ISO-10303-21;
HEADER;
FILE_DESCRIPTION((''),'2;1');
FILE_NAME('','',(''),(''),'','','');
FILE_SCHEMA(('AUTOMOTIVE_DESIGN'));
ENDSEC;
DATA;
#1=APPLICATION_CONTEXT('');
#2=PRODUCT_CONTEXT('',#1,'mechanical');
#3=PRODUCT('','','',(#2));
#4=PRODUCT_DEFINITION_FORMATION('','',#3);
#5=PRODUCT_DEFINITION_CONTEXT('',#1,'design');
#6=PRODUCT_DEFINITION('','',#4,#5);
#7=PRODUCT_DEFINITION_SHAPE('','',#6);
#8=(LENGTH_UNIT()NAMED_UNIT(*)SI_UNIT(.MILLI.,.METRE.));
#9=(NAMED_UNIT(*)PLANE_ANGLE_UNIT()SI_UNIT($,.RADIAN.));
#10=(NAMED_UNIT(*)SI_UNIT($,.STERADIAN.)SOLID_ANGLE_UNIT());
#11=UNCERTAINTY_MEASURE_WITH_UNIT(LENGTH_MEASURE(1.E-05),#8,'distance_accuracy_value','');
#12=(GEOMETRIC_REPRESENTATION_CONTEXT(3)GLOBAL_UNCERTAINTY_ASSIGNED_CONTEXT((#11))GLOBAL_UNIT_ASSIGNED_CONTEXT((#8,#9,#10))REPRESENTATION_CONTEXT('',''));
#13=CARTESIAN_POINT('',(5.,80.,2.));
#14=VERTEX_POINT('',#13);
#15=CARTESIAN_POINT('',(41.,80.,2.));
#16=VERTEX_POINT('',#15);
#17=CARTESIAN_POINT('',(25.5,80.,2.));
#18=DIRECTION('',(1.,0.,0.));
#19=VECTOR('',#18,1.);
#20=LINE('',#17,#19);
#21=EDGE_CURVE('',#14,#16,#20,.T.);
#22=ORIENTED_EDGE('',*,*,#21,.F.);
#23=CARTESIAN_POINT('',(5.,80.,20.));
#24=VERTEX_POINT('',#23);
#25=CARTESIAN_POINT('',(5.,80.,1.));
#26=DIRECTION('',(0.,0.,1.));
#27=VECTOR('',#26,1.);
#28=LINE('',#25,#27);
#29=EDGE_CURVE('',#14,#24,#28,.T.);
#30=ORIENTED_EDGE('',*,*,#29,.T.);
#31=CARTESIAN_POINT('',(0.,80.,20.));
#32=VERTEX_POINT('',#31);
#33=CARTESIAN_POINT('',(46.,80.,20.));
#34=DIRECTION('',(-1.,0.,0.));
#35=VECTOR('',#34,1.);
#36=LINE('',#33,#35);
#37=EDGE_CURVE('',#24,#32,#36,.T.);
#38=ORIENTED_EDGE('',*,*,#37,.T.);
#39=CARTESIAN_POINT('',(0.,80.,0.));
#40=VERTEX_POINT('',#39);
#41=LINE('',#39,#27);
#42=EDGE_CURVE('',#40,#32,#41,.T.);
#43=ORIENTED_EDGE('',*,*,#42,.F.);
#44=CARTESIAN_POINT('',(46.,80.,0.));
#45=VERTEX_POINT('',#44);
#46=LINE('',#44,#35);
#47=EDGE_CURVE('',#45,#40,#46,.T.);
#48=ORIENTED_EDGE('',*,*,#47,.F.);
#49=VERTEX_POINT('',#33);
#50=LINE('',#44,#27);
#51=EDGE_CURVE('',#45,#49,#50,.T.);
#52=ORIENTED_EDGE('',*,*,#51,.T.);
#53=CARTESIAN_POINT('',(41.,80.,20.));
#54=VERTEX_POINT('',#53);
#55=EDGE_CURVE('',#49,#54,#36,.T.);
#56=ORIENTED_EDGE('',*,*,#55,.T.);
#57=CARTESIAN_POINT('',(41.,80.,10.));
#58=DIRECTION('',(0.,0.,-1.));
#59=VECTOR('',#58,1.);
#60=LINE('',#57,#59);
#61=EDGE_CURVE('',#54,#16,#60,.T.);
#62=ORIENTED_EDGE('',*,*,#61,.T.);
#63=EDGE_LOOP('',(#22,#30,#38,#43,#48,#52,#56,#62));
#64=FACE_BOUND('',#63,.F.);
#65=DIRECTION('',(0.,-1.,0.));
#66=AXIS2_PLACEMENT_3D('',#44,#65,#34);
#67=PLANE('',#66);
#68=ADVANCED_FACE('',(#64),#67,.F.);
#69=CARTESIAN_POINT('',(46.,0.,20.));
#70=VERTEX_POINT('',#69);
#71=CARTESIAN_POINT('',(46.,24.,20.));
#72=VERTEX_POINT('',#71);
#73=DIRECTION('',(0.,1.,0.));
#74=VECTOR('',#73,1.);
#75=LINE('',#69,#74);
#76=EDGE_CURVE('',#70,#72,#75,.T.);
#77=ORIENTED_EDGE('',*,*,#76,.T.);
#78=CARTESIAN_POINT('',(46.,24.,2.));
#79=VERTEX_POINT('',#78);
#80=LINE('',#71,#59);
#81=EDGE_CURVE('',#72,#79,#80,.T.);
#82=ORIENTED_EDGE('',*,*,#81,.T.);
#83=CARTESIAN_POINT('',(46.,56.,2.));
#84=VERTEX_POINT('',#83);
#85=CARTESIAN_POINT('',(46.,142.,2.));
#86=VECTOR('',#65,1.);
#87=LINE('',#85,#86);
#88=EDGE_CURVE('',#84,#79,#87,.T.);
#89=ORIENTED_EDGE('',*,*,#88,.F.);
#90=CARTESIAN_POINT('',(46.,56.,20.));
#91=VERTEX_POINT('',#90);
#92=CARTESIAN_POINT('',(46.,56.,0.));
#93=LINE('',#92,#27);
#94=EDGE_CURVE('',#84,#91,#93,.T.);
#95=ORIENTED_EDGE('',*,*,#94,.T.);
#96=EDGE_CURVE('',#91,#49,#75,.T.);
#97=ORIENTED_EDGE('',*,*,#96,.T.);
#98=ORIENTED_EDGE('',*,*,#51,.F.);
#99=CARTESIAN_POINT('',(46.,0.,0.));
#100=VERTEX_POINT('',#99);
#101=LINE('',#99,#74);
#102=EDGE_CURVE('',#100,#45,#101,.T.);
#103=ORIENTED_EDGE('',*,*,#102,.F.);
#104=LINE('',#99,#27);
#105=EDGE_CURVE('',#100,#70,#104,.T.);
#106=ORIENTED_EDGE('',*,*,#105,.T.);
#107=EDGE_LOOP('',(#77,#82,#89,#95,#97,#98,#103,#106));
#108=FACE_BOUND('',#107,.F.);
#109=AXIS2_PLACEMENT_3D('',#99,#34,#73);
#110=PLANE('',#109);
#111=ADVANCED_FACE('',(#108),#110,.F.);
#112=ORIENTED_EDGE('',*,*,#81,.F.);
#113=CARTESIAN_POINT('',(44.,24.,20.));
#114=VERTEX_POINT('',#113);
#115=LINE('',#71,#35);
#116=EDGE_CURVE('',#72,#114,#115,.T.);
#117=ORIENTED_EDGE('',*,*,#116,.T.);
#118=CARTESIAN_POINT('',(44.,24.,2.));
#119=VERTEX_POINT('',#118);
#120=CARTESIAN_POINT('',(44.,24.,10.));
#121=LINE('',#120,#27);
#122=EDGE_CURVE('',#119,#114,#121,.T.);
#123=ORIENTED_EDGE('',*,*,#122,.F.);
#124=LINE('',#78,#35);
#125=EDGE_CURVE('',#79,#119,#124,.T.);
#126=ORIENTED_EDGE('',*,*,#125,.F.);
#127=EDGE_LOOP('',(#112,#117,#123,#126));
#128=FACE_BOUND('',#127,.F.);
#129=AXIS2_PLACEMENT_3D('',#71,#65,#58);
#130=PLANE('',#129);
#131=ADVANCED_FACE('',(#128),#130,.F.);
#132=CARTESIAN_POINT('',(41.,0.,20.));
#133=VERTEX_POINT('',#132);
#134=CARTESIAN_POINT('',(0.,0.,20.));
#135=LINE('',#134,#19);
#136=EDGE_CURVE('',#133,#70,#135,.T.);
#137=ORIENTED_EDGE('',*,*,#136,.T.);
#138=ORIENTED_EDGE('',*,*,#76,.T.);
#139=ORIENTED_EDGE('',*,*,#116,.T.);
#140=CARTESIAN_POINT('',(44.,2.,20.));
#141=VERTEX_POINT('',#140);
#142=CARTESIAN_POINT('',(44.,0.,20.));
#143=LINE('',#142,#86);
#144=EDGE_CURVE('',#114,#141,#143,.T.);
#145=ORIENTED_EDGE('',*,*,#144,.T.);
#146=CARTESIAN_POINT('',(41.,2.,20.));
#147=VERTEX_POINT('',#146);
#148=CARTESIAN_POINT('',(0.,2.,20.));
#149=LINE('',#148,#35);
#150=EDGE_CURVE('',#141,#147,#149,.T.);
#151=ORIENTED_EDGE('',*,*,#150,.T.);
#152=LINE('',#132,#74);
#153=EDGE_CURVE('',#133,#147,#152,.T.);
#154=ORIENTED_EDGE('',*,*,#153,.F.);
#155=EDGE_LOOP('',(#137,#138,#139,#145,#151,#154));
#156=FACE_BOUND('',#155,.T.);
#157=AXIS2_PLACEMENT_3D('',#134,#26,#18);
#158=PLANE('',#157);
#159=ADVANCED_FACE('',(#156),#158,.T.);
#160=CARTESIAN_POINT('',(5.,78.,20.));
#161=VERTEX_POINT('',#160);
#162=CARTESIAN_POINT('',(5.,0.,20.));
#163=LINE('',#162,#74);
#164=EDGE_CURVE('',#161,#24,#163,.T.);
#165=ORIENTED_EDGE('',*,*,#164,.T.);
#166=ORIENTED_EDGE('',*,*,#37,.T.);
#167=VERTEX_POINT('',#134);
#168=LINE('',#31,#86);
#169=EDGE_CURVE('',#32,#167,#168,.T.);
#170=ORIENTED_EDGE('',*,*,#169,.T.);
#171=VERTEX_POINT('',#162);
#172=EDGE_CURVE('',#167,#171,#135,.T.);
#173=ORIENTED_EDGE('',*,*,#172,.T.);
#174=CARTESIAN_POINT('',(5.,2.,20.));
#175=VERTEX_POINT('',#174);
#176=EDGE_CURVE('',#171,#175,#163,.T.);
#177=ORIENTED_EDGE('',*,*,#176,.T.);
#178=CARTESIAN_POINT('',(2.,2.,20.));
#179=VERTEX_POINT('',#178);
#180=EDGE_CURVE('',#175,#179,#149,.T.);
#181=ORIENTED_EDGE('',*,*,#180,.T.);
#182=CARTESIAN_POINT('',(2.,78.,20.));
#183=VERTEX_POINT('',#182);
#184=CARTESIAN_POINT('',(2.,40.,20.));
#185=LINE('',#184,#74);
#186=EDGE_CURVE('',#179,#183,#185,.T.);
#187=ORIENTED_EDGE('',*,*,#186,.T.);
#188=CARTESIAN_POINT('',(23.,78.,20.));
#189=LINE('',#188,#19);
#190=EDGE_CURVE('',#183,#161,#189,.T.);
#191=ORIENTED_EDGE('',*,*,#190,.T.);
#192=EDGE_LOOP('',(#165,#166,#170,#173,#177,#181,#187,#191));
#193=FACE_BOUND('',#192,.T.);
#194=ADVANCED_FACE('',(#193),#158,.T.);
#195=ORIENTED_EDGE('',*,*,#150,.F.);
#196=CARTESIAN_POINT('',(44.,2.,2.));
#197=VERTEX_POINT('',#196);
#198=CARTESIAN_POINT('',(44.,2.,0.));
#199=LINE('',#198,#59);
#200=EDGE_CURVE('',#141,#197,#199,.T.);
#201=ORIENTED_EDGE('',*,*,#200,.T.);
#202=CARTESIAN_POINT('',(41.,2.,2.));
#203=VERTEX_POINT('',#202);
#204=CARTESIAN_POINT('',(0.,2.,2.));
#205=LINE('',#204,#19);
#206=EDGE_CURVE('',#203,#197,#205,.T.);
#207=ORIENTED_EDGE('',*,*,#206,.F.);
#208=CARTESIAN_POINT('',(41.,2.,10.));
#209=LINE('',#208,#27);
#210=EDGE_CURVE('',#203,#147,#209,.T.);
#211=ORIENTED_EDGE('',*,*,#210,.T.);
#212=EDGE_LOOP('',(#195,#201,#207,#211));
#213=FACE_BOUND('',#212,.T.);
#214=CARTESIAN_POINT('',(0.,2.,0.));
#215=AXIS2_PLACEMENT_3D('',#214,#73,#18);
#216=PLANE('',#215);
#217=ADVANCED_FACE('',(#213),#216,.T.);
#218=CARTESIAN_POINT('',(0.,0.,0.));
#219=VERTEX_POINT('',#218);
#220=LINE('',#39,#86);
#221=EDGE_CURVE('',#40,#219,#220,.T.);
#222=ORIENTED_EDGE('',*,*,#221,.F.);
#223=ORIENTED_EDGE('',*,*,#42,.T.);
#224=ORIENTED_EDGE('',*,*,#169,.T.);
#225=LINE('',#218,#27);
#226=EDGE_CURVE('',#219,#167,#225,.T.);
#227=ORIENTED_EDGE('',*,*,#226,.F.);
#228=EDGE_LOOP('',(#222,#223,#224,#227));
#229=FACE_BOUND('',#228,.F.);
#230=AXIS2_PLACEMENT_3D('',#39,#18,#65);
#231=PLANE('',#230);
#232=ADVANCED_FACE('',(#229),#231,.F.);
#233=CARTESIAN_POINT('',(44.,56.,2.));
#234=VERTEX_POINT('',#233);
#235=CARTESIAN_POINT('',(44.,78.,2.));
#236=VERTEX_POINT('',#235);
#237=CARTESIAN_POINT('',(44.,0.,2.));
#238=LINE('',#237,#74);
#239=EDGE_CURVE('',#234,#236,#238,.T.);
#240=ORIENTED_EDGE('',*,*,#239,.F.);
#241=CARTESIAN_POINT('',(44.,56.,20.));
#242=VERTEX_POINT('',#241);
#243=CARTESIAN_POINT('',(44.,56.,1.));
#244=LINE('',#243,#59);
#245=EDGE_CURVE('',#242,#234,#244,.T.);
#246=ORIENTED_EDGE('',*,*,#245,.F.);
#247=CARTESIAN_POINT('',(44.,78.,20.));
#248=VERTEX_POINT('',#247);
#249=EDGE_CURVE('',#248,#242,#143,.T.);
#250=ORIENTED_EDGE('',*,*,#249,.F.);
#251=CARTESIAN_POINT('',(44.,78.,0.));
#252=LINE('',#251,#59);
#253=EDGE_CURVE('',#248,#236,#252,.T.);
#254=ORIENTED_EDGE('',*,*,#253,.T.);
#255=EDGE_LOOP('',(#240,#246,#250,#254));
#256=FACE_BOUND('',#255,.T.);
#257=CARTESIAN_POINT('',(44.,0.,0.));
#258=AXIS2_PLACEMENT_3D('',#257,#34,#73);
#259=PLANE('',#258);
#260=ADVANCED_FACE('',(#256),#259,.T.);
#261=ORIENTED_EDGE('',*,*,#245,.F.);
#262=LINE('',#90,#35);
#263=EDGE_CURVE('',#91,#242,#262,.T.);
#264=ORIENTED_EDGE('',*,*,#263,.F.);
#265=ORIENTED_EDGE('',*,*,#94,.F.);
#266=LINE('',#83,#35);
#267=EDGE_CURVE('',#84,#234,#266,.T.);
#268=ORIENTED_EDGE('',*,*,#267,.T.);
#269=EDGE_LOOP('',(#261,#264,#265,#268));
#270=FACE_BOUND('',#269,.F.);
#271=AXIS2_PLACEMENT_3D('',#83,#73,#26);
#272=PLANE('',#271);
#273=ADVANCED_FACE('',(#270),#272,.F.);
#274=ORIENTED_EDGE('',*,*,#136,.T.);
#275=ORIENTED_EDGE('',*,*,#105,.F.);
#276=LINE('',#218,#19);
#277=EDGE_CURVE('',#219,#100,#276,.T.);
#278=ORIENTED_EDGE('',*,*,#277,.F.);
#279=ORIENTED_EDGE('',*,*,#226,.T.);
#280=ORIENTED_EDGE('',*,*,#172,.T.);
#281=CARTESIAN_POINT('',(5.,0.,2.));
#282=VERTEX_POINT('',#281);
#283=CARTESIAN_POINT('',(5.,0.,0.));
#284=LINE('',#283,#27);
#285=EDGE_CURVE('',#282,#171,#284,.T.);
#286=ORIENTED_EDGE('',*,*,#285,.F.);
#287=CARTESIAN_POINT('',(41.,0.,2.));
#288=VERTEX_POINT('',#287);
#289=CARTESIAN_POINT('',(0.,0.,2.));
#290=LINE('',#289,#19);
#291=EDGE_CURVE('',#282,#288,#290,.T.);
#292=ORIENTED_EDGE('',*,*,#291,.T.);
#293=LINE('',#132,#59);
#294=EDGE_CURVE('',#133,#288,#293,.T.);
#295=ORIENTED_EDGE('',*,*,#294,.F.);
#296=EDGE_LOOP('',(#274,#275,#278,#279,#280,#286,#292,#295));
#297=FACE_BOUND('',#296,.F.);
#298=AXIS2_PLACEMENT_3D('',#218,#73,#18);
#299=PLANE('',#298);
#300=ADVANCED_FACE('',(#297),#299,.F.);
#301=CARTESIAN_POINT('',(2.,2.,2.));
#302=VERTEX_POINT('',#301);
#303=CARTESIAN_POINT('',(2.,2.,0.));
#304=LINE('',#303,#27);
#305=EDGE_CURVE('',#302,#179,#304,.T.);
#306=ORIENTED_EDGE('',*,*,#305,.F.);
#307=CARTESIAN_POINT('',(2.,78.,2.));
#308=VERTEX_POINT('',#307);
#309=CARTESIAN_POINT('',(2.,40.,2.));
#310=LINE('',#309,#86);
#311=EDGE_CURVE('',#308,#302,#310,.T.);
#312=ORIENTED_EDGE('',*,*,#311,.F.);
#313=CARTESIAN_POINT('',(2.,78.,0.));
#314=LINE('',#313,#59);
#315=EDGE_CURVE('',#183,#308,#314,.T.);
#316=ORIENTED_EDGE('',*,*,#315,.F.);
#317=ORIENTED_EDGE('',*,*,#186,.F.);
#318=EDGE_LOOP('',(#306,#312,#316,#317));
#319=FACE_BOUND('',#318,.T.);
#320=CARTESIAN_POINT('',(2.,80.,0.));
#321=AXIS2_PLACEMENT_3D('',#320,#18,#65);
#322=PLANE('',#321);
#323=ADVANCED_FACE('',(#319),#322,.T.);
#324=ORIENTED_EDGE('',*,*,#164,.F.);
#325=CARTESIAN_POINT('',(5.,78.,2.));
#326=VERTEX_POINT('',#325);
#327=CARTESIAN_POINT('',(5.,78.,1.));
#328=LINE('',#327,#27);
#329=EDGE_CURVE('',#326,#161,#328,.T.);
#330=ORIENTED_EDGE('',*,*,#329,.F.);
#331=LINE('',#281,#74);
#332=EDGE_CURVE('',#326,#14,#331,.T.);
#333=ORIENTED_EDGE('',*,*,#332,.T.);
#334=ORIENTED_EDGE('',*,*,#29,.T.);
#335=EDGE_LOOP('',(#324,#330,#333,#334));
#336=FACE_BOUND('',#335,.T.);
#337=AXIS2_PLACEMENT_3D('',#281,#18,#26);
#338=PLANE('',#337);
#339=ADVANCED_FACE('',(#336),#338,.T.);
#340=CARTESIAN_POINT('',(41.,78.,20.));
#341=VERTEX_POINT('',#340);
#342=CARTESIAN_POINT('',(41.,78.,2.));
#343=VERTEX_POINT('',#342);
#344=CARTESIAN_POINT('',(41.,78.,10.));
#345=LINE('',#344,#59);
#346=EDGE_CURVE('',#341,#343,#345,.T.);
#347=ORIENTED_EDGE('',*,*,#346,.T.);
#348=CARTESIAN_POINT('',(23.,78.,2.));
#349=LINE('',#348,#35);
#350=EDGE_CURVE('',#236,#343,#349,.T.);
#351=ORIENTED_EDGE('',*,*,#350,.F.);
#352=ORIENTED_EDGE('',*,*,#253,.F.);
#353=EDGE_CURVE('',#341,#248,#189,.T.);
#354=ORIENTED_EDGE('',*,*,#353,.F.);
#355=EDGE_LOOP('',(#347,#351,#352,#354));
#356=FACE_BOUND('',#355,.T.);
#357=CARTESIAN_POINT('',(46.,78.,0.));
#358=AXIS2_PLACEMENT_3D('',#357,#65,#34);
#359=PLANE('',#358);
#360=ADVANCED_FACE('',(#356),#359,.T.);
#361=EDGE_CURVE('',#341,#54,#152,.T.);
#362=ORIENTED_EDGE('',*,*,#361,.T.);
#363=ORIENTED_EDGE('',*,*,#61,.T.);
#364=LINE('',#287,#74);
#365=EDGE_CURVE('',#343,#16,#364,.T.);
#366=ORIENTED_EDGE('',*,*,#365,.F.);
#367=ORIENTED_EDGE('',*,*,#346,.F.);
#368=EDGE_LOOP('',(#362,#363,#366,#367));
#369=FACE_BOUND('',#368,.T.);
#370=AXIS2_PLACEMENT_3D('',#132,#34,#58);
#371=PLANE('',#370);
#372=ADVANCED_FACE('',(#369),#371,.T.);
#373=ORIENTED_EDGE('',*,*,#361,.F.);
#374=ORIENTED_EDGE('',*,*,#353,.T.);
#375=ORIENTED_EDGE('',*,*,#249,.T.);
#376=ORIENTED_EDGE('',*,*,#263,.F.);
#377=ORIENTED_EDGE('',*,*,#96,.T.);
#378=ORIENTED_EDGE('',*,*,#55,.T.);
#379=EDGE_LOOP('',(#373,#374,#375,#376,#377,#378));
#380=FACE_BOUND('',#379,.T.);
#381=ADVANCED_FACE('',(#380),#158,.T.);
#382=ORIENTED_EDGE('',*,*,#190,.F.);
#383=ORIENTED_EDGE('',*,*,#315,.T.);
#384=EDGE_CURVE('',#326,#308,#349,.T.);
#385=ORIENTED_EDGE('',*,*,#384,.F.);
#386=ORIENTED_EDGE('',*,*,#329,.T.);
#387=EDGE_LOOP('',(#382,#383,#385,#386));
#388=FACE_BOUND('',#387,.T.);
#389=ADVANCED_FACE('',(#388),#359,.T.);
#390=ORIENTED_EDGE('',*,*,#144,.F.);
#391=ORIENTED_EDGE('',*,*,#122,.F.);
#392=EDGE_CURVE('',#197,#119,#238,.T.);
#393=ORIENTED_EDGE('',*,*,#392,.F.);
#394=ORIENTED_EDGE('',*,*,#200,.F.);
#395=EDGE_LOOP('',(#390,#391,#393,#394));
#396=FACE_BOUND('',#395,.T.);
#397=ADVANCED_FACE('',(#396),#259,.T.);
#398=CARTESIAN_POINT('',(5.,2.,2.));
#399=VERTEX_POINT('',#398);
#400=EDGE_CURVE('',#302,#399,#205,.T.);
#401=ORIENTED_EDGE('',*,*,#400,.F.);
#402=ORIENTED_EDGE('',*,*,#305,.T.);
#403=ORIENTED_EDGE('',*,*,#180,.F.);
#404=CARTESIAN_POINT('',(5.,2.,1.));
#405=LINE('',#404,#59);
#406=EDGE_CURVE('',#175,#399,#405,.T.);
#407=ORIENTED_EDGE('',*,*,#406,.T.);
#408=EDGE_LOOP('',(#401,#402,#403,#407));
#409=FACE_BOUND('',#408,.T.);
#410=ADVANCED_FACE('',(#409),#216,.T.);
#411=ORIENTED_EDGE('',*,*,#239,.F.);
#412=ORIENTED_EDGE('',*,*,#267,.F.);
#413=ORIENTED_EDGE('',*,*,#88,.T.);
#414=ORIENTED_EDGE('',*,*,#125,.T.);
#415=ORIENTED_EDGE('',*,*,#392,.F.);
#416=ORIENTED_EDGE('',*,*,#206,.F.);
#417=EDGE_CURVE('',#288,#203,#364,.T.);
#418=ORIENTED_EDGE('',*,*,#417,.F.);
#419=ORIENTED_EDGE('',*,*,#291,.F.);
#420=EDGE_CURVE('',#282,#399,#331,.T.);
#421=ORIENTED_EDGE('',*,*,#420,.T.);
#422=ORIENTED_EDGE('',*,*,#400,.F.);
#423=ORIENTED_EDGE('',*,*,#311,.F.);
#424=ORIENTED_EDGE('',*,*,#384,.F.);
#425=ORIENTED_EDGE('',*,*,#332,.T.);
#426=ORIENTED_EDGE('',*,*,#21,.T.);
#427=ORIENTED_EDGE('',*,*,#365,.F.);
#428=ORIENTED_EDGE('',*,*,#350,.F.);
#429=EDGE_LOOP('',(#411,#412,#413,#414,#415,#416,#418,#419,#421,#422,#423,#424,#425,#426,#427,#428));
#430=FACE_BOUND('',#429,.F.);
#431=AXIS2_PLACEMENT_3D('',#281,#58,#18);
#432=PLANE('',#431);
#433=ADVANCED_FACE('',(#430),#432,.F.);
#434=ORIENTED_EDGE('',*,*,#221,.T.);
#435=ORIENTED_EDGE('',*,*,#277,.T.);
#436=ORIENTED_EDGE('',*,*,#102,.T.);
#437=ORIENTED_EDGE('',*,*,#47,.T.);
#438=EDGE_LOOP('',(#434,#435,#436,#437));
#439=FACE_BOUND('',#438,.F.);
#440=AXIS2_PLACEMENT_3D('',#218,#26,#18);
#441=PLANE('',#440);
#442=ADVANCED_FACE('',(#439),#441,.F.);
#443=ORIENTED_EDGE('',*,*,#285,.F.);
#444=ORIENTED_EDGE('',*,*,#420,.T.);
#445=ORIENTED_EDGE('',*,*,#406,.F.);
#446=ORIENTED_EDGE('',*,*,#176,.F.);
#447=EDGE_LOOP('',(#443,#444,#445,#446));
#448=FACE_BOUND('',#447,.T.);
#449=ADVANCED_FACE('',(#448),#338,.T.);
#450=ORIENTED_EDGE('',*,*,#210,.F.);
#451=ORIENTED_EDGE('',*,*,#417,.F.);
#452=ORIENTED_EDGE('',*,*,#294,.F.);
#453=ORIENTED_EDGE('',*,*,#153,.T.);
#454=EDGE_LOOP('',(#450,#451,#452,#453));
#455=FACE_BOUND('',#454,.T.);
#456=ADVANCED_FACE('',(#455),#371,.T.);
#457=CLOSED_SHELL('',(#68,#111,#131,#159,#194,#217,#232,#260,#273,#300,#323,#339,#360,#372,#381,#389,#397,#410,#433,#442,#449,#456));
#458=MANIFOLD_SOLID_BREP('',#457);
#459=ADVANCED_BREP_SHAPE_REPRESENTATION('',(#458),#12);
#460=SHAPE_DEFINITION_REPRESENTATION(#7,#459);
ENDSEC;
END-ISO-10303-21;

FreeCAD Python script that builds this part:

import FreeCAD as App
import Part
import Sketcher
from FreeCAD import Vector


def faces_at(feature, points):
    """Names of the faces that lie closest to the given points."""
    faces = feature.Shape.Faces
    near = lambda p: min(range(len(faces)), key=lambda i: faces[i].distToShape(Part.Vertex(*p))[0])
    return sorted({f"Face{near(p) + 1}" for p in points})

doc = App.newDocument("Part")
params = doc.addObject("Spreadsheet::Sheet", "Params")
for row, (alias, value) in enumerate([
    ("sketch1_width", "46 mm"),
    ("sketch1_height", "80 mm"),
    ("pad1_length", "20 mm"),
    ("thickness_wall", "2 mm"),
    ("sketch2_width", "36 mm"),
    ("sketch2_height", "18 mm"),
    ("pocket1_length", "155 mm"),
    ("sketch3_width", "32 mm"),
    ("sketch3_height", "18 mm"),
    ("pocket2_length", "15 mm"),
], start=1):
    params.set(f"A{row}", alias)
    params.set(f"B{row}", "=" + value)
    params.setAlias(f"B{row}", alias)

body = doc.addObject("PartDesign::Body", "Body")

# Sketch on XY plane
sketch1 = doc.addObject("Sketcher::SketchObject", "Sketch")
body.addObject(sketch1)
sketch1.AttachmentSupport = (doc.XY_Plane, [""])
sketch1.MapMode = "FlatFace"
sketch1.addGeometry(Part.LineSegment(Vector(0, 80, 0), Vector(0, 0, 0)), False)
sketch1.addGeometry(Part.LineSegment(Vector(0, 0, 0), Vector(46, 0, 0)), False)
sketch1.addGeometry(Part.LineSegment(Vector(46, 0, 0), Vector(46, 80, 0)), False)
sketch1.addGeometry(Part.LineSegment(Vector(46, 80, 0), Vector(0, 80, 0)), False)
sketch1.addConstraint(Sketcher.Constraint("Coincident", 0, 2, 1, 1))
sketch1.addConstraint(Sketcher.Constraint("Coincident", 1, 2, 2, 1))
sketch1.addConstraint(Sketcher.Constraint("Coincident", 2, 2, 3, 1))
sketch1.addConstraint(Sketcher.Constraint("Coincident", 3, 2, 0, 1))
sketch1.addConstraint(Sketcher.Constraint("Vertical", 0))
sketch1.addConstraint(Sketcher.Constraint("Horizontal", 1))
sketch1.addConstraint(Sketcher.Constraint("Vertical", 2))
sketch1.addConstraint(Sketcher.Constraint("Horizontal", 3))
sketch1.addConstraint(Sketcher.Constraint("Coincident", 0, 2, -1, 1))
sketch1.addConstraint(Sketcher.Constraint("DistanceX", 1, 1, 1, 2, 46.0))
sketch1.addConstraint(Sketcher.Constraint("DistanceY", 0, 2, 0, 1, 80.0))
sketch1.setExpression("Constraints[9]", "Params.sketch1_width")
sketch1.setExpression("Constraints[10]", "Params.sketch1_height")
pad1 = doc.addObject("PartDesign::Pad", "Pad")
body.addObject(pad1)
pad1.Profile = sketch1
pad1.setExpression("Length", "Params.pad1_length")
doc.recompute()

thickness = doc.addObject("PartDesign::Thickness", "Thickness")
body.addObject(thickness)
thickness.Base = (pad1, faces_at(pad1, [(15.333, 53.333, 20)]))
thickness.setExpression("Value", "Params.thickness_wall")
thickness.Reversed = True
thickness.Join = "Intersection"

# Sketch on XZ plane
sketch2 = doc.addObject("Sketcher::SketchObject", "Sketch001")
body.addObject(sketch2)
sketch2.AttachmentSupport = (doc.XZ_Plane, [""])
sketch2.MapMode = "FlatFace"
sketch2.addGeometry(Part.LineSegment(Vector(5, 20, 0), Vector(5, 2, 0)), False)
sketch2.addGeometry(Part.LineSegment(Vector(5, 2, 0), Vector(41, 2, 0)), False)
sketch2.addGeometry(Part.LineSegment(Vector(41, 2, 0), Vector(41, 20, 0)), False)
sketch2.addGeometry(Part.LineSegment(Vector(41, 20, 0), Vector(5, 20, 0)), False)
sketch2.addConstraint(Sketcher.Constraint("Coincident", 0, 2, 1, 1))
sketch2.addConstraint(Sketcher.Constraint("Coincident", 1, 2, 2, 1))
sketch2.addConstraint(Sketcher.Constraint("Coincident", 2, 2, 3, 1))
sketch2.addConstraint(Sketcher.Constraint("Coincident", 3, 2, 0, 1))
sketch2.addConstraint(Sketcher.Constraint("Vertical", 0))
sketch2.addConstraint(Sketcher.Constraint("Horizontal", 1))
sketch2.addConstraint(Sketcher.Constraint("Vertical", 2))
sketch2.addConstraint(Sketcher.Constraint("Horizontal", 3))
sketch2.addConstraint(Sketcher.Constraint("DistanceX", -1, 1, 0, 2, 5.0))
sketch2.addConstraint(Sketcher.Constraint("DistanceY", -1, 1, 0, 2, 2.0))
sketch2.addConstraint(Sketcher.Constraint("DistanceX", 1, 1, 1, 2, 36.0))
sketch2.addConstraint(Sketcher.Constraint("DistanceY", 0, 2, 0, 1, 18.0))
sketch2.setExpression("Constraints[10]", "Params.sketch2_width")
sketch2.setExpression("Constraints[11]", "Params.sketch2_height")
pocket1 = doc.addObject("PartDesign::Pocket", "Pocket")
body.addObject(pocket1)
pocket1.Profile = sketch2
pocket1.setExpression("Length", "Params.pocket1_length")

# Sketch on YZ plane
sketch3 = doc.addObject("Sketcher::SketchObject", "Sketch002")
body.addObject(sketch3)
sketch3.AttachmentSupport = (doc.YZ_Plane, [""])
sketch3.MapMode = "FlatFace"
sketch3.AttachmentOffset = App.Placement(Vector(0, 0, 46), App.Rotation())
sketch3.addGeometry(Part.LineSegment(Vector(24, 2, 0), Vector(56, 2, 0)), False)
sketch3.addGeometry(Part.LineSegment(Vector(56, 2, 0), Vector(56, 20, 0)), False)
sketch3.addGeometry(Part.LineSegment(Vector(56, 20, 0), Vector(24, 20, 0)), False)
sketch3.addGeometry(Part.LineSegment(Vector(24, 20, 0), Vector(24, 2, 0)), False)
sketch3.addConstraint(Sketcher.Constraint("Coincident", 0, 2, 1, 1))
sketch3.addConstraint(Sketcher.Constraint("Coincident", 1, 2, 2, 1))
sketch3.addConstraint(Sketcher.Constraint("Coincident", 2, 2, 3, 1))
sketch3.addConstraint(Sketcher.Constraint("Coincident", 3, 2, 0, 1))
sketch3.addConstraint(Sketcher.Constraint("Horizontal", 0))
sketch3.addConstraint(Sketcher.Constraint("Vertical", 1))
sketch3.addConstraint(Sketcher.Constraint("Horizontal", 2))
sketch3.addConstraint(Sketcher.Constraint("Vertical", 3))
sketch3.addConstraint(Sketcher.Constraint("DistanceY", -1, 1, 0, 2, 2.0))
sketch3.addConstraint(Sketcher.Constraint("DistanceX", -1, 1, 2, 2, 24.0))
sketch3.addConstraint(Sketcher.Constraint("DistanceX", 0, 1, 0, 2, 32.0))
sketch3.addConstraint(Sketcher.Constraint("DistanceY", 1, 1, 1, 2, 18.0))
sketch3.setExpression("Constraints[10]", "Params.sketch3_width")
sketch3.setExpression("Constraints[11]", "Params.sketch3_height")
pocket2 = doc.addObject("PartDesign::Pocket", "Pocket001")
body.addObject(pocket2)
pocket2.Profile = sketch3
pocket2.setExpression("Length", "Params.pocket2_length")

doc.recompute()
